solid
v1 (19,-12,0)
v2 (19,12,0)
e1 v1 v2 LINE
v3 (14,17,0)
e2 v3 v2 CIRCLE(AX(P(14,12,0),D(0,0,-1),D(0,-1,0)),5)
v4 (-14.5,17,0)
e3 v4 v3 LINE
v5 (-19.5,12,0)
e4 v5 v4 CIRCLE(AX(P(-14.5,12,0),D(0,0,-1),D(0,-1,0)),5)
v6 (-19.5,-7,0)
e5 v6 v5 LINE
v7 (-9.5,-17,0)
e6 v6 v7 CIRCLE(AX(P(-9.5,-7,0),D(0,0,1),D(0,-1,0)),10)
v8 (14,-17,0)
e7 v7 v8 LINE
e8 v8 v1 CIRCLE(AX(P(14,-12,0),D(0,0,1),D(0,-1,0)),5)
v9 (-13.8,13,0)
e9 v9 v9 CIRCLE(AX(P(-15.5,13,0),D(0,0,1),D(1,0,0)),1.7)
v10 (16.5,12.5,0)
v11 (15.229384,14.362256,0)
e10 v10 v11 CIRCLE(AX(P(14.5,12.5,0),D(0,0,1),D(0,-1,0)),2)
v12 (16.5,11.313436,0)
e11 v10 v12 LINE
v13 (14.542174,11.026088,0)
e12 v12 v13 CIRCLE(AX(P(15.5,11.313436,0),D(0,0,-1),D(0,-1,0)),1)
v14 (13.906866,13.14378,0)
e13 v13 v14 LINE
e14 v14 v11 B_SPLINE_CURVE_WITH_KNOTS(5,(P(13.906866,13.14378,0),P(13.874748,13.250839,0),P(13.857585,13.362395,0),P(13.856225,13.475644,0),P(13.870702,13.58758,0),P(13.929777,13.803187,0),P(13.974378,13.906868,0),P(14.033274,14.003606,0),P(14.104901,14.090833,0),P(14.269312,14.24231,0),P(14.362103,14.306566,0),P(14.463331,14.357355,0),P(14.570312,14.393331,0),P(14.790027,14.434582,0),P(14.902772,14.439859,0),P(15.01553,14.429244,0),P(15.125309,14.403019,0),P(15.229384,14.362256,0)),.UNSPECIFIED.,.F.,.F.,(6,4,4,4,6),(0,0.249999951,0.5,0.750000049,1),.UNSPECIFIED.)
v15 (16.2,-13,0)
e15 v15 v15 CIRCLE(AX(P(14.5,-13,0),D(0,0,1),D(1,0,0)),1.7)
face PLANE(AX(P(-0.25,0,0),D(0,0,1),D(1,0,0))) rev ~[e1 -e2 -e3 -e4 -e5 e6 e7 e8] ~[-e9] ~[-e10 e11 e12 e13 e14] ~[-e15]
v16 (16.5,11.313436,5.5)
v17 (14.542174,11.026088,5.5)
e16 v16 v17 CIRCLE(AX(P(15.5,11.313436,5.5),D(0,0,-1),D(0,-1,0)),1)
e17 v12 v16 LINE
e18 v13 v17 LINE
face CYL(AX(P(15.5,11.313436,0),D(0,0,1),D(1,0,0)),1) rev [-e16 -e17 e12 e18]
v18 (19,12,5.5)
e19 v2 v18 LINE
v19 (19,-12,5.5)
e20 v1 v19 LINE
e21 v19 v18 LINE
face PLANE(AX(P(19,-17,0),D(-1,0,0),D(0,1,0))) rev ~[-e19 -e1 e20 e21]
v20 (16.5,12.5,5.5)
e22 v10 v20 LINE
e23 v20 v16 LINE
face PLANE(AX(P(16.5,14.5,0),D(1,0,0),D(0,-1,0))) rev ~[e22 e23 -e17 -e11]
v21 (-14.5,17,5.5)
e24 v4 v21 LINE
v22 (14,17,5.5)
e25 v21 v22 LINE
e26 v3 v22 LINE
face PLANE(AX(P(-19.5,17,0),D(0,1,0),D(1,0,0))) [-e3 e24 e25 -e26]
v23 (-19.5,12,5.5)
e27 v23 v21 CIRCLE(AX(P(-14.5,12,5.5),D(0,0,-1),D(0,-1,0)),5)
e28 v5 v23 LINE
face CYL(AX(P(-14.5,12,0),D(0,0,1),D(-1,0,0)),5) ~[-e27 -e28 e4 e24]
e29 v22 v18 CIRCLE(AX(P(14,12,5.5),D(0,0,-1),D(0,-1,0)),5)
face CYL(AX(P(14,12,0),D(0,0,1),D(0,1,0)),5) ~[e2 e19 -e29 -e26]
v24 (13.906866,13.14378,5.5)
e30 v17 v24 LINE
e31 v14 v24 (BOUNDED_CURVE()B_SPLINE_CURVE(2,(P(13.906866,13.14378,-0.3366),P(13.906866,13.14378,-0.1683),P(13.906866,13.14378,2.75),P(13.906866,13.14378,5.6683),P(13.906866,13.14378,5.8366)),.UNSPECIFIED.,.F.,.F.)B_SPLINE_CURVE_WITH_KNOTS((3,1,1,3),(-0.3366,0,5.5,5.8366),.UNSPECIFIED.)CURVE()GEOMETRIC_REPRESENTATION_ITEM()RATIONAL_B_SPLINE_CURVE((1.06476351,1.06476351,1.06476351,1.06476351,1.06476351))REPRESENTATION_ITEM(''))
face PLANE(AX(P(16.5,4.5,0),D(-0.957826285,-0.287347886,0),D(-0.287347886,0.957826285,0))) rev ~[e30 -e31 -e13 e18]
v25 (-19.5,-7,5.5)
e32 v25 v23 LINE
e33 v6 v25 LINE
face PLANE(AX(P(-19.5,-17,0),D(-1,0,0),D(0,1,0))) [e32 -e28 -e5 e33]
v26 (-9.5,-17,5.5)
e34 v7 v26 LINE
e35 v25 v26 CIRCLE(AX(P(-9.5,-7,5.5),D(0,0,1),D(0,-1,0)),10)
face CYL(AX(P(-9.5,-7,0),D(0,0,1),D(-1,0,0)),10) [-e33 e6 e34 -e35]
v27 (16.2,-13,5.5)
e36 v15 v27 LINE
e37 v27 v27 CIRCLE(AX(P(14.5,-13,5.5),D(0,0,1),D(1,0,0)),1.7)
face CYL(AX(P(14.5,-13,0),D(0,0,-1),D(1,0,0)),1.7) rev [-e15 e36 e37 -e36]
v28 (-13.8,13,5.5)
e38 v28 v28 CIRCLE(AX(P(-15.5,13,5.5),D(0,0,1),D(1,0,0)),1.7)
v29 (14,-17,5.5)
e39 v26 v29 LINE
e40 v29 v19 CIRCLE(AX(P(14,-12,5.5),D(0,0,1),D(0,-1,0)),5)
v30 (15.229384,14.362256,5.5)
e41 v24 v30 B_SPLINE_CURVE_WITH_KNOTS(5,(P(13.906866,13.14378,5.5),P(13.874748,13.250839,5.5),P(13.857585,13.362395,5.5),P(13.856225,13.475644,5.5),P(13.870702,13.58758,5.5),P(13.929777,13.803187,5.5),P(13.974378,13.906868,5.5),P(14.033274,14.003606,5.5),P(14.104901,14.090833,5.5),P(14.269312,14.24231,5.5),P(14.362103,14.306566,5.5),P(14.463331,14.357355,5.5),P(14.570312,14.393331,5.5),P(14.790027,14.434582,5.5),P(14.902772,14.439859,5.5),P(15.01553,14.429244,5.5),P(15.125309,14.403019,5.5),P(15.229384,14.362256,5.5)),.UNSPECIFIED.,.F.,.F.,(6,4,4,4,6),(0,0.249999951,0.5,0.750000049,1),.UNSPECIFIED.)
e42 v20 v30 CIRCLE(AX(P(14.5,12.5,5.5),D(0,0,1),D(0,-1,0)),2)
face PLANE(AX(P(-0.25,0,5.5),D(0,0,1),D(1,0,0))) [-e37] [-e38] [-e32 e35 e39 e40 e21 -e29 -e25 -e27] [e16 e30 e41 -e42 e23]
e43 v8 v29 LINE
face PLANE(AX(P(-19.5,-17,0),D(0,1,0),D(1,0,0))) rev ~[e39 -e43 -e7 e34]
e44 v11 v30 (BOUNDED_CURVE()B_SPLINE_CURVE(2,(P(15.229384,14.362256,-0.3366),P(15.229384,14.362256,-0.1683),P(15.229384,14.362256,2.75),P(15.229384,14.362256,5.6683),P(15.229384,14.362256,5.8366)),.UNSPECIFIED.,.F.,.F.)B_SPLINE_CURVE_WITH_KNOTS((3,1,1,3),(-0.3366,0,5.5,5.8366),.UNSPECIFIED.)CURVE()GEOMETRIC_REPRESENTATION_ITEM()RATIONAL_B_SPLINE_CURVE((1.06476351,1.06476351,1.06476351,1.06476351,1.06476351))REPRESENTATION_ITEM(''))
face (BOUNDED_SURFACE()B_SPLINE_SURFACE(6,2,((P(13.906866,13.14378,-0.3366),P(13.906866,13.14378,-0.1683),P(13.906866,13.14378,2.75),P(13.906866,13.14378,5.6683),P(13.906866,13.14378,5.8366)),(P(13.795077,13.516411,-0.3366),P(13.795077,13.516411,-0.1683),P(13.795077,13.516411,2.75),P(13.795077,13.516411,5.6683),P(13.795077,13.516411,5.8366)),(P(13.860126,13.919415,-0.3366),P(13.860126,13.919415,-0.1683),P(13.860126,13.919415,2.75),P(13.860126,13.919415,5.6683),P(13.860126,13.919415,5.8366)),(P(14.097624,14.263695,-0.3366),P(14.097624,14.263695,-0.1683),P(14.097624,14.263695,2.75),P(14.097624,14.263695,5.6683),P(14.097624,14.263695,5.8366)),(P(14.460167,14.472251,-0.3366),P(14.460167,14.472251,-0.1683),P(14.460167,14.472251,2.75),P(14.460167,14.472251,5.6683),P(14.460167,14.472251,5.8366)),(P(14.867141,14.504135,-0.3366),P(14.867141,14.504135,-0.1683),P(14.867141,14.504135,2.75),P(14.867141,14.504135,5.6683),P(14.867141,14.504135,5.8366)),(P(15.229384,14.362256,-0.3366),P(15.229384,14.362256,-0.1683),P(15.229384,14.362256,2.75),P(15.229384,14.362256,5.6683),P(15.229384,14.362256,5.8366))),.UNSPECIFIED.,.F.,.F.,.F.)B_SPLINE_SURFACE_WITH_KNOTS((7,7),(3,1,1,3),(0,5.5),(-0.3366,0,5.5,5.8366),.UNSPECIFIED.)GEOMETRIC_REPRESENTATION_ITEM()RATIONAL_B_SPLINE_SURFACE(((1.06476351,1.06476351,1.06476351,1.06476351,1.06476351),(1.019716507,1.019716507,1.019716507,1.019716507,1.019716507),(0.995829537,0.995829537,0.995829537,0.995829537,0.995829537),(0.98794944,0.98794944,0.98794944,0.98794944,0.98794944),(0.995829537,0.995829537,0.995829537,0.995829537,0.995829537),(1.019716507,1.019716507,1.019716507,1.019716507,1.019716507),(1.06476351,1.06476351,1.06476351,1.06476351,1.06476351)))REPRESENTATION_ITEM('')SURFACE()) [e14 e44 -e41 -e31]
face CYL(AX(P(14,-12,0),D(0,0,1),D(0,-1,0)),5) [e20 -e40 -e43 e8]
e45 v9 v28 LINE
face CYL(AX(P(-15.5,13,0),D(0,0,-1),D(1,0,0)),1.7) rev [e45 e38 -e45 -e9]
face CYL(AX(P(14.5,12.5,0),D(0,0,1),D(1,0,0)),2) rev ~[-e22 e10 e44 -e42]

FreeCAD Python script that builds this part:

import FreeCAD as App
import Part
import Sketcher

V = App.Vector


def edges_at(feature, points):
    """Names of the edges that pass closest to the given points."""
    edges = feature.Shape.Edges
    near = lambda p: min(range(len(edges)), key=lambda i: edges[i].distToShape(Part.Vertex(*p))[0])
    return sorted({f"Edge{near(p) + 1}" for p in points})


def add_polygon(sketch, points):
    """Adds a closed chain of lines whose ends are joined by coincident constraints."""
    first, n = sketch.GeometryCount, len(points)
    for a, b in zip(points, points[1:] + points[:1]):
        sketch.addGeometry(Part.LineSegment(App.Vector(*a, 0), App.Vector(*b, 0)), False)
    for i in range(n):
        sketch.addConstraint(Sketcher.Constraint("Coincident", first + i, 2, first + (i + 1) % n, 1))

doc = App.newDocument("Part")
body = doc.addObject("PartDesign::Body", "Body")

# Sketch on XY plane
sketch1 = body.newObject("Sketcher::SketchObject", "Sketch")
sketch1.AttachmentSupport = (doc.getObject("XY_Plane"), [""])
sketch1.MapMode = "FlatFace"
add_polygon(sketch1, [(-19.5, 17), (-19.5, -17), (19, -17), (19, 17)])  # lines 0-3
sketch1.addGeometry(Part.Circle(V(14.5, -13, 0), V(0, 0, 1), 1.7), False)  # 4
sketch1.addGeometry(Part.Circle(V(-15.5, 13, 0), V(0, 0, 1), 1.7), False)  # 5
add_polygon(sketch1, [(16.5, 4.5), (13.5, 14.5), (16.5, 14.5)])  # lines 6-8
sketch1.addConstraint(Sketcher.Constraint("Vertical", 0))
sketch1.addConstraint(Sketcher.Constraint("Horizontal", 1))
sketch1.addConstraint(Sketcher.Constraint("Vertical", 2))
sketch1.addConstraint(Sketcher.Constraint("Horizontal", 3))
sketch1.addConstraint(Sketcher.Constraint("Horizontal", 7))
sketch1.addConstraint(Sketcher.Constraint("Vertical", 8))
sketch1.addConstraint(Sketcher.Constraint("Equal", 4, 5))
sketch1.addConstraint(Sketcher.Constraint("Diameter", 4, 3.4))
sketch1.addConstraint(Sketcher.Constraint("DistanceX", 7, 1, 7, 2, 3.0))
sketch1.addConstraint(Sketcher.Constraint("DistanceY", 0, 2, 0, 1, 34.0))
sketch1.addConstraint(Sketcher.Constraint("DistanceY", 8, 2, 8, 1, 10.0))
sketch1.addConstraint(Sketcher.Constraint("DistanceX", 1, 1, 1, 2, 38.5))
sketch1.addConstraint(Sketcher.Constraint("DistanceY", 4, 3, -1, 1, 13.0))
sketch1.addConstraint(Sketcher.Constraint("DistanceY", -1, 1, 5, 3, 13.0))
sketch1.addConstraint(Sketcher.Constraint("DistanceY", 0, 2, -1, 1, 17.0))
sketch1.addConstraint(Sketcher.Constraint("DistanceX", -1, 1, 1, 2, 19.0))
sketch1.addConstraint(Sketcher.Constraint("DistanceX", 5, 3, 4, 3, 30.0))
sketch1.addConstraint(Sketcher.Constraint("DistanceX", 0, 2, 5, 3, 4.0))
sketch1.addConstraint(Sketcher.Constraint("DistanceX", 6, 2, 4, 3, 1.0))
sketch1.addConstraint(Sketcher.Constraint("DistanceY", -1, 1, 6, 2, 14.5))
pad1 = body.newObject("PartDesign::Pad", "Pad")
pad1.Profile = sketch1
pad1.Length = 5.5
doc.recompute()

fillet = body.newObject("PartDesign::Fillet", "Fillet")
fillet.Base = (pad1, edges_at(pad1, [(16.5, 14.5, 2.75)]))
fillet.Radius = 2
doc.recompute()

fillet2 = body.newObject("PartDesign::Fillet", "Fillet001")
fillet2.Base = (fillet, edges_at(fillet, [(16.5, 4.5, 2.75), (13.5, 14.5, 2.75)]))
fillet2.Radius = 1
doc.recompute()

fillet3 = body.newObject("PartDesign::Fillet", "Fillet002")
fillet3.Base = (fillet2, edges_at(fillet2, [(19, 17, 2.75)]))
fillet3.Radius = 5
doc.recompute()

fillet4 = body.newObject("PartDesign::Fillet", "Fillet003")
fillet4.Base = (fillet3, edges_at(fillet3, [(-19.5, -17, 2.75)]))
fillet4.Radius = 10
doc.recompute()

fillet5 = body.newObject("PartDesign::Fillet", "Fillet004")
fillet5.Base = (fillet4, edges_at(fillet4, [(-19.5, 17, 2.75), (19, -17, 2.75)]))
fillet5.Radius = 5

doc.recompute()
